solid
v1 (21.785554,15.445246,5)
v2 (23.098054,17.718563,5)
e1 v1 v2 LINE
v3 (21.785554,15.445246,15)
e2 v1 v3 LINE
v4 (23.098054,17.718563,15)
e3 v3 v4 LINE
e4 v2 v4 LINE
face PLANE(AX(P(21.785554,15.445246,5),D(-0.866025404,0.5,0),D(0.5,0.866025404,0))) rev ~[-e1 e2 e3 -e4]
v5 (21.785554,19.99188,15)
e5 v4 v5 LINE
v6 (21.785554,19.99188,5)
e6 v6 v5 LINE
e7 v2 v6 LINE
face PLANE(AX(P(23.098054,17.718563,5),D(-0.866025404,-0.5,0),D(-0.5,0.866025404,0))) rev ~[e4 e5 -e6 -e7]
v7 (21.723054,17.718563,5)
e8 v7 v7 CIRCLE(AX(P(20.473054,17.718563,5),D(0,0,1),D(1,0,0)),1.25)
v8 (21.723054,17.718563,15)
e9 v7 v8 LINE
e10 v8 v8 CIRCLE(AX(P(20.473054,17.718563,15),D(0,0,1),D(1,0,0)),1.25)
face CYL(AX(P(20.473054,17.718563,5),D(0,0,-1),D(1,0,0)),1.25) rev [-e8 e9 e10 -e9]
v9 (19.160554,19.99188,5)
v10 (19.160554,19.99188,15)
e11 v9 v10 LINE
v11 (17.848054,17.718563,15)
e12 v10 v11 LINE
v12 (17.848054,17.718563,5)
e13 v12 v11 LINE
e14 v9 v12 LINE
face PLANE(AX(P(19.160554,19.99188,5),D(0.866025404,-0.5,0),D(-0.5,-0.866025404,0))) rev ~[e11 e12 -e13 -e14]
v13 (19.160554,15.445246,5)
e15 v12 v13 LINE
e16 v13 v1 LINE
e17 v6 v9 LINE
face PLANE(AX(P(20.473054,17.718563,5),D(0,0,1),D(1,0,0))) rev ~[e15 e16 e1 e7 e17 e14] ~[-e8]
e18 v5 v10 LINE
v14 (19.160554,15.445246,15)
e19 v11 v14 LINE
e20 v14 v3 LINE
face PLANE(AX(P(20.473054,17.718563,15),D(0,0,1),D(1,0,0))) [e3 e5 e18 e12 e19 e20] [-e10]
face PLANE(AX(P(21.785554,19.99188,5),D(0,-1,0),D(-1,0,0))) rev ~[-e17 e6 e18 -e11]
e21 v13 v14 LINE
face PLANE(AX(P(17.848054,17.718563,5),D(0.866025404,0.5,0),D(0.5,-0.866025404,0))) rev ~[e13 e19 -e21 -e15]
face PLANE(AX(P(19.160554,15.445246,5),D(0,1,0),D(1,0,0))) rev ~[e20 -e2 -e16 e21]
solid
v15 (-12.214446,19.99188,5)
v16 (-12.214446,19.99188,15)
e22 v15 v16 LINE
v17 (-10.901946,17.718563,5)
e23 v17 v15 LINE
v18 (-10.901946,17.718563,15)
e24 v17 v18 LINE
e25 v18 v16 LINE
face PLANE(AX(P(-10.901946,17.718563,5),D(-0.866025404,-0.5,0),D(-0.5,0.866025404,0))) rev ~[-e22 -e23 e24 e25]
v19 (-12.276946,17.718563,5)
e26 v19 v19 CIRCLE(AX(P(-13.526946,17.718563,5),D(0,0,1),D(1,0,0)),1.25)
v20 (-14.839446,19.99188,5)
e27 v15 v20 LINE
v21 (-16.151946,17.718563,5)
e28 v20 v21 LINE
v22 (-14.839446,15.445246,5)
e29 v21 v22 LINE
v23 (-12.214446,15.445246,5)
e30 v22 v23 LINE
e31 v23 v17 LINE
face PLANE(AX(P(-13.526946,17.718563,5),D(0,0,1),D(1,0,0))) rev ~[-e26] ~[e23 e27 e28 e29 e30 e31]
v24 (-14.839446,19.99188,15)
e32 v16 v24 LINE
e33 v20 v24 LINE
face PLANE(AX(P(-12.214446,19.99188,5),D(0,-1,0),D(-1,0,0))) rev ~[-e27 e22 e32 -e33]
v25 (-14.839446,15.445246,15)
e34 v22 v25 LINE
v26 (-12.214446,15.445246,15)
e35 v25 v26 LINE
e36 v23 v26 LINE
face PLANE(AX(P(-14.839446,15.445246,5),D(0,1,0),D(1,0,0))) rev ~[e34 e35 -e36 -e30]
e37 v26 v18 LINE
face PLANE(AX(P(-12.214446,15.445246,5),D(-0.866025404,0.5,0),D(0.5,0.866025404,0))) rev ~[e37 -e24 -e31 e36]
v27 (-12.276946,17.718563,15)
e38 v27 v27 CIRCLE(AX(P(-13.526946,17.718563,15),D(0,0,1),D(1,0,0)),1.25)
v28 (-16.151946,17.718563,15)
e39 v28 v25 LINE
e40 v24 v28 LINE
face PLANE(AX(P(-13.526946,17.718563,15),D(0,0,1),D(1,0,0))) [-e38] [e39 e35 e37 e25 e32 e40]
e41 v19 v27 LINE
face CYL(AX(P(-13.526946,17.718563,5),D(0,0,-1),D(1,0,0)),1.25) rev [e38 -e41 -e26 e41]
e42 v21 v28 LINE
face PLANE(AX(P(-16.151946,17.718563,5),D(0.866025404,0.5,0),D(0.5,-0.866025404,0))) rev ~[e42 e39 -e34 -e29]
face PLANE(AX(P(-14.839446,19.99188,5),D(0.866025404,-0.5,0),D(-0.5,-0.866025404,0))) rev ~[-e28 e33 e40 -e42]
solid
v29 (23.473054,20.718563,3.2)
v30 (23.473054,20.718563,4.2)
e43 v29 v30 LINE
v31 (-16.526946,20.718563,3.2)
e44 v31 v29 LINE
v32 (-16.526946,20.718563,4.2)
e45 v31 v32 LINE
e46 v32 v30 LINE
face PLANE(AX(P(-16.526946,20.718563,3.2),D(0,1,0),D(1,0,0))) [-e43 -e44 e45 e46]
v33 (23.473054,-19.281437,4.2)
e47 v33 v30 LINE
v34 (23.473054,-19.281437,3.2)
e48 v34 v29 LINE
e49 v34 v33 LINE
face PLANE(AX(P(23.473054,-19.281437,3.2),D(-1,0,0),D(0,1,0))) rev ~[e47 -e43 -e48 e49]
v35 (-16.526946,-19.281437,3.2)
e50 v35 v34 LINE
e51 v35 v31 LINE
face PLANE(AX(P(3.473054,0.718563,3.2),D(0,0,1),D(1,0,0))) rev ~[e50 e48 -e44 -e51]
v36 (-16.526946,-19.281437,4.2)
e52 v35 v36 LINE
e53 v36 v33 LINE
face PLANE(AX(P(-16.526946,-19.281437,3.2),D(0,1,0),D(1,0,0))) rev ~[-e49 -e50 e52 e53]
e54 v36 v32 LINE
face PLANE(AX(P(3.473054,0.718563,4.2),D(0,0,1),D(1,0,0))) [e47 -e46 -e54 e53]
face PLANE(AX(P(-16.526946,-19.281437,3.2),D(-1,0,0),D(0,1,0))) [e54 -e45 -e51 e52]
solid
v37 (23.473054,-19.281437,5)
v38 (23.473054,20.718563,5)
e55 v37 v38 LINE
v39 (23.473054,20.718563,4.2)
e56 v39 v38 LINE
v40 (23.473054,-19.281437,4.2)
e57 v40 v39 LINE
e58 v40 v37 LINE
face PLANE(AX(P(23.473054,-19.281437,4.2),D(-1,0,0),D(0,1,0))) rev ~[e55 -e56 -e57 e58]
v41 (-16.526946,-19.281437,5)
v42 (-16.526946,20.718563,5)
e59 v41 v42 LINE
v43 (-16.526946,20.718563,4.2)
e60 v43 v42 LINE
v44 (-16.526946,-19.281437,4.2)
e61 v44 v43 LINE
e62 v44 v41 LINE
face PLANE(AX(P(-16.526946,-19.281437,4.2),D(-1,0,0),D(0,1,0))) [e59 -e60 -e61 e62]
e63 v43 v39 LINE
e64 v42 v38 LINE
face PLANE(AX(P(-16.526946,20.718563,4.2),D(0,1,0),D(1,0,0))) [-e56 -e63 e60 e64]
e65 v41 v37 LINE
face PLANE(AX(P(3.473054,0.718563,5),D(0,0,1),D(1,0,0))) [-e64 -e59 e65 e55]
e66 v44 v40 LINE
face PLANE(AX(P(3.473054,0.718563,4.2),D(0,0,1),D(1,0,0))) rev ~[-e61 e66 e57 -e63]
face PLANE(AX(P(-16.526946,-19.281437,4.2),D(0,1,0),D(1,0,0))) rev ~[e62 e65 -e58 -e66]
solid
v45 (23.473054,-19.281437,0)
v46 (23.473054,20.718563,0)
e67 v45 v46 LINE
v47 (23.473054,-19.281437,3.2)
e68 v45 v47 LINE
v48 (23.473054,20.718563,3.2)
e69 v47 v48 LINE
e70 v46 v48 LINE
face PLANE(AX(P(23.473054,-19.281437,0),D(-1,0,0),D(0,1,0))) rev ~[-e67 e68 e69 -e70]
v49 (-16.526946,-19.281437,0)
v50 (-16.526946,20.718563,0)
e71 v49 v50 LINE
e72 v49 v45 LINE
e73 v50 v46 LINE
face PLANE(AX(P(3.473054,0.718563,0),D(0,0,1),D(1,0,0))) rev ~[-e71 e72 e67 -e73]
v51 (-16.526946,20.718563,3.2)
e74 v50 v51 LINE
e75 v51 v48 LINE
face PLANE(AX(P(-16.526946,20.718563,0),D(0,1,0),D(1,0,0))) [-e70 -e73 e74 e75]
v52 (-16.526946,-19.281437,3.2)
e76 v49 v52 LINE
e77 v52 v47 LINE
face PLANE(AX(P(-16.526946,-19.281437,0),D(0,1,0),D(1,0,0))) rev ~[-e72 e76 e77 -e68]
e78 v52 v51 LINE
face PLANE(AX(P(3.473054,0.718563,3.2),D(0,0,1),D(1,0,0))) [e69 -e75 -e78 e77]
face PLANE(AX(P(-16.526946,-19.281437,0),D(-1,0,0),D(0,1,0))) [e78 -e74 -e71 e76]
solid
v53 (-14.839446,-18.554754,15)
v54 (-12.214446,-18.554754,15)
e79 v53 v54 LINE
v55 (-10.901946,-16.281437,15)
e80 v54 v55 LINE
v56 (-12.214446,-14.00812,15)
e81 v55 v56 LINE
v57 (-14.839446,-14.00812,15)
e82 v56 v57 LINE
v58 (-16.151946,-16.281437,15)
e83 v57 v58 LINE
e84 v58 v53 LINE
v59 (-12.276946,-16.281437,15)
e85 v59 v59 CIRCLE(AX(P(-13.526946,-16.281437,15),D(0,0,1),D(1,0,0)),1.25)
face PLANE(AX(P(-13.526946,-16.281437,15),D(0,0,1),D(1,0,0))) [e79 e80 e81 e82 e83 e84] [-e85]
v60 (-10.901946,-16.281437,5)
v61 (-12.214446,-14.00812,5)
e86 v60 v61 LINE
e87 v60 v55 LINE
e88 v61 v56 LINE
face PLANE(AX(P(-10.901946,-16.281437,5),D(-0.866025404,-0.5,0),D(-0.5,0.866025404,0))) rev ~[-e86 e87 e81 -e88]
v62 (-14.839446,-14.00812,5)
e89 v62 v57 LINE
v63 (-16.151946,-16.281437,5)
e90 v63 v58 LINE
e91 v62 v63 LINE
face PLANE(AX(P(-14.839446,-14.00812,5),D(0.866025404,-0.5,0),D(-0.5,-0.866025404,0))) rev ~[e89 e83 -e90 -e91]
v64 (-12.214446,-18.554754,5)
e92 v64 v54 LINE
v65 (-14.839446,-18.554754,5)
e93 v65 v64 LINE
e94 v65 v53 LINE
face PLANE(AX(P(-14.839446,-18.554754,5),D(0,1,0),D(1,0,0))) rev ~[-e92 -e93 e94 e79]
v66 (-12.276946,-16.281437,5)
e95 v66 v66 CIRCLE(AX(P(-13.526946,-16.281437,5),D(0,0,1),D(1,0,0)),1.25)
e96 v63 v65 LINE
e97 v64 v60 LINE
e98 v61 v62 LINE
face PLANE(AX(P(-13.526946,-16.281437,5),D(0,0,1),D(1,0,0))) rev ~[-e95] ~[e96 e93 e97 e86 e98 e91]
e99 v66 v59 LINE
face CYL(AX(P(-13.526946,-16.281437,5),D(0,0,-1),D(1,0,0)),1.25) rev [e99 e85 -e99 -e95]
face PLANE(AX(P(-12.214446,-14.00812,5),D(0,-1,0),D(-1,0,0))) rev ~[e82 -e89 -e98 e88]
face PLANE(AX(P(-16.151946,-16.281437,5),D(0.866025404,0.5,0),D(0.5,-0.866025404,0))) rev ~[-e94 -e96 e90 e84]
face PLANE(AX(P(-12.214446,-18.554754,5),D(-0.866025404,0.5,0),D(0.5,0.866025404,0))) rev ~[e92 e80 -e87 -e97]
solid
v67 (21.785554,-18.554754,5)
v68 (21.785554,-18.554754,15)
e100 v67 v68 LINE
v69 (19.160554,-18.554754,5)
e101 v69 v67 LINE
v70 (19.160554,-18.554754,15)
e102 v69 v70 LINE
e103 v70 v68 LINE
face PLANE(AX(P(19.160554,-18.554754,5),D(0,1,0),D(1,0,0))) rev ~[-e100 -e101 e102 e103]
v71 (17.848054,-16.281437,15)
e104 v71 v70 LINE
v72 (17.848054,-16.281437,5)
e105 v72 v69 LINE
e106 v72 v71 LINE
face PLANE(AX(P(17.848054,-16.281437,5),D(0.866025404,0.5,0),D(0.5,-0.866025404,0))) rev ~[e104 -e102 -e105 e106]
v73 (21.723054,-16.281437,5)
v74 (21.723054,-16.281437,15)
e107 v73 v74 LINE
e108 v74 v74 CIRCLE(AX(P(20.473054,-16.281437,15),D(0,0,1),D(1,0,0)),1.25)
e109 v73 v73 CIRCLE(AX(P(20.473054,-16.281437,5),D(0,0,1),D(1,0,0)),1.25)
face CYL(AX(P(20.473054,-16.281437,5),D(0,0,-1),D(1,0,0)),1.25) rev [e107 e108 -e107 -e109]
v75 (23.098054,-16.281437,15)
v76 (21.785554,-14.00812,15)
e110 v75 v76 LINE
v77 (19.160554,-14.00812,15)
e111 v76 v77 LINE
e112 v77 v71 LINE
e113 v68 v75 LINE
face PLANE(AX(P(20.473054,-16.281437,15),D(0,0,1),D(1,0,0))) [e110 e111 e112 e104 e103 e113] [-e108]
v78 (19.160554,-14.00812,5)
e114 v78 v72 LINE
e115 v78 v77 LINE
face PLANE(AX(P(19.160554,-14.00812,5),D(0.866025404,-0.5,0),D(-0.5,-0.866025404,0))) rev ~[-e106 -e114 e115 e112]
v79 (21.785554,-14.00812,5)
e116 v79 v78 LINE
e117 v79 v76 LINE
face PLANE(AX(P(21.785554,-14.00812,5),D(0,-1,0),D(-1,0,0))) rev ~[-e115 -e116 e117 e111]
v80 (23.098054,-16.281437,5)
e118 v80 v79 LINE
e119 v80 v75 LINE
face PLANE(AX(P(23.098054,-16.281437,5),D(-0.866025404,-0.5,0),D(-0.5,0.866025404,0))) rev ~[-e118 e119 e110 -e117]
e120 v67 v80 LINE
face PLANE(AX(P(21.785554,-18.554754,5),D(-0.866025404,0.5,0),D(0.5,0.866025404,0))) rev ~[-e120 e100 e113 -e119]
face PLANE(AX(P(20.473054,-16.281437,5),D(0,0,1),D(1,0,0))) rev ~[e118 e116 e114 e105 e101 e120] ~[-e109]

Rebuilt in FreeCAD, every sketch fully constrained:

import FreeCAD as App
import Part
import Sketcher
from FreeCAD import Vector
Q = App.Units.Quantity


def add_polygon(sketch, points):
    """Adds a closed chain of lines whose ends are joined by coincident constraints."""
    first, n = sketch.GeometryCount, len(points)
    for a, b in zip(points, points[1:] + points[:1]):
        sketch.addGeometry(Part.LineSegment(App.Vector(*a, 0), App.Vector(*b, 0)), False)
    for i in range(n):
        sketch.addConstraint(Sketcher.Constraint("Coincident", first + i, 2, first + (i + 1) % n, 1))

doc = App.newDocument("Part")
body = doc.addObject("PartDesign::Body", "Body")

# Sketch on XY plane
sketch1 = body.newObject("Sketcher::SketchObject", "Sketch")
sketch1.AttachmentSupport = (doc.getObject("XY_Plane"), [""])
sketch1.MapMode = "FlatFace"
add_polygon(sketch1, [(-17, 21), (-17, -19), (23, -19), (23, 21)])  # lines 0-3
sketch1.addConstraint([
    Sketcher.Constraint("Vertical", 0),
    Sketcher.Constraint("Horizontal", 1),
    Sketcher.Constraint("Vertical", 2),
    Sketcher.Constraint("Horizontal", 3),
    Sketcher.Constraint("Equal", 3, 0),
    Sketcher.Constraint("DistanceX", 1, 1, 1, 2, 40.0),
    Sketcher.Constraint("DistanceX", 0, 2, -1, 1, 16.526946),
    Sketcher.Constraint("DistanceY", 0, 2, -1, 1, 19.281437),
])
pad1 = body.newObject("PartDesign::Pad", "Pad")
pad1.Profile = sketch1
pad1.Length = 3.2
body2 = doc.addObject("PartDesign::Body", "Body001")

# Sketch on XY plane
sketch2 = body2.newObject("Sketcher::SketchObject", "Sketch001")
sketch2.AttachmentSupport = (doc.getObject("XY_Plane001"), [""])
sketch2.MapMode = "FlatFace"
sketch2.AttachmentOffset = App.Placement(Vector(0, 0, 3.2), App.Rotation())
add_polygon(sketch2, [(-17, 21), (-17, -19), (23, -19), (23, 21)])  # lines 0-3
sketch2.addConstraint([
    Sketcher.Constraint("Vertical", 0),
    Sketcher.Constraint("Horizontal", 1),
    Sketcher.Constraint("Vertical", 2),
    Sketcher.Constraint("Horizontal", 3),
    Sketcher.Constraint("Equal", 3, 0),
    Sketcher.Constraint("DistanceX", 1, 1, 1, 2, 40.0),
    Sketcher.Constraint("DistanceX", 0, 2, -1, 1, 16.526946),
    Sketcher.Constraint("DistanceY", 0, 2, -1, 1, 19.281437),
])
pad2 = body2.newObject("PartDesign::Pad", "Pad001")
pad2.Profile = sketch2
pad2.Length = 1
body3 = doc.addObject("PartDesign::Body", "Body002")

# Sketch on XY plane
sketch3 = body3.newObject("Sketcher::SketchObject", "Sketch002")
sketch3.AttachmentSupport = (doc.getObject("XY_Plane002"), [""])
sketch3.MapMode = "FlatFace"
sketch3.AttachmentOffset = App.Placement(Vector(0, 0, 4.2), App.Rotation())
add_polygon(sketch3, [(-17, 21), (-17, -19), (23, -19), (23, 21)])  # lines 0-3
sketch3.addConstraint([
    Sketcher.Constraint("Vertical", 0),
    Sketcher.Constraint("Horizontal", 1),
    Sketcher.Constraint("Vertical", 2),
    Sketcher.Constraint("Horizontal", 3),
    Sketcher.Constraint("Equal", 3, 0),
    Sketcher.Constraint("DistanceX", 1, 1, 1, 2, 40.0),
    Sketcher.Constraint("DistanceX", 0, 2, -1, 1, 16.526946),
    Sketcher.Constraint("DistanceY", 0, 2, -1, 1, 19.281437),
])
pad3 = body3.newObject("PartDesign::Pad", "Pad002")
pad3.Profile = sketch3
pad3.Length = 0.8
body4 = doc.addObject("PartDesign::Body", "Body003")

# Sketch on XY plane
sketch4 = body4.newObject("Sketcher::SketchObject", "Sketch003")
sketch4.AttachmentSupport = (doc.getObject("XY_Plane003"), [""])
sketch4.MapMode = "FlatFace"
sketch4.AttachmentOffset = App.Placement(Vector(0, 0, 5), App.Rotation())
add_polygon(sketch4, [(-10.9, 17.7), (-12.2, 20), (-14.8, 20), (-16.2, 17.7), (-14.8, 15.4), (-12.2, 15.4)])  # lines 0-5
sketch4.addGeometry(Part.Circle(Vector(-13.5, 17.7, 0), Vector(0, 0, 1), 1.2), False)  # 6
sketch4.addConstraint([
    Sketcher.Constraint("Horizontal", 1),
    Sketcher.Constraint("Horizontal", 4),
    Sketcher.Constraint("Parallel", 0, 3),
    Sketcher.Constraint("Parallel", 2, 5),
    Sketcher.Constraint("Horizontal", 6, 3, 2, 2),
    Sketcher.Constraint("Horizontal", 2, 2, 5, 2),
    Sketcher.Constraint("Vertical", 1, 2, 3, 2),
    Sketcher.Constraint("Vertical", 0, 2, 4, 2),
    Sketcher.Constraint("Diameter", 6, 2.5),
    Sketcher.Constraint("Angle", 0, Q("120 deg")),
    Sketcher.Constraint("DistanceX", 1, 2, 1, 1, 2.625),
    Sketcher.Constraint("Distance", 0, 2.625),
    Sketcher.Constraint("DistanceX", 2, 2, 6, 3, 2.625),
    Sketcher.Constraint("DistanceY", -1, 1, 0, 2, 19.99188),
    Sketcher.Constraint("DistanceX", 6, 3, -1, 1, 13.526946),
])
pad4 = body4.newObject("PartDesign::Pad", "Pad003")
pad4.Profile = sketch4
pad4.Length = 10
body5 = doc.addObject("PartDesign::Body", "Body004")

# Sketch on XY plane
sketch5 = body5.newObject("Sketcher::SketchObject", "Sketch004")
sketch5.AttachmentSupport = (doc.getObject("XY_Plane004"), [""])
sketch5.MapMode = "FlatFace"
sketch5.AttachmentOffset = App.Placement(Vector(0, 0, 5), App.Rotation())
add_polygon(sketch5, [(17.8, 17.7), (19.2, 15.4), (21.8, 15.4), (23.1, 17.7), (21.8, 20), (19.2, 20)])  # lines 0-5
sketch5.addGeometry(Part.Circle(Vector(20.5, 17.7, 0), Vector(0, 0, 1), 1.2), False)  # 6
sketch5.addConstraint([
    Sketcher.Constraint("Horizontal", 1),
    Sketcher.Constraint("Horizontal", 4),
    Sketcher.Constraint("Parallel", 0, 3),
    Sketcher.Constraint("Parallel", 2, 5),
    Sketcher.Constraint("Horizontal", 6, 3, 2, 2),
    Sketcher.Constraint("Horizontal", 2, 2, 5, 2),
    Sketcher.Constraint("Vertical", 1, 2, 3, 2),
    Sketcher.Constraint("Vertical", 0, 2, 4, 2),
    Sketcher.Constraint("Diameter", 6, 2.5),
    Sketcher.Constraint("Angle", 0, Q("-60 deg")),
    Sketcher.Constraint("DistanceX", 1, 1, 1, 2, 2.625),
    Sketcher.Constraint("Distance", 0, 2.625),
    Sketcher.Constraint("DistanceX", 6, 3, 2, 2, 2.625),
    Sketcher.Constraint("DistanceY", -1, 1, 3, 2, 19.99188),
    Sketcher.Constraint("DistanceX", -1, 1, 6, 3, 20.473054),
])
pad5 = body5.newObject("PartDesign::Pad", "Pad004")
pad5.Profile = sketch5
pad5.Length = 10
body6 = doc.addObject("PartDesign::Body", "Body005")

# Sketch on XY plane
sketch6 = body6.newObject("Sketcher::SketchObject", "Sketch005")
sketch6.AttachmentSupport = (doc.getObject("XY_Plane005"), [""])
sketch6.MapMode = "FlatFace"
sketch6.AttachmentOffset = App.Placement(Vector(0, 0, 5), App.Rotation())
add_polygon(sketch6, [(-10.9, -16.3), (-12.2, -14), (-14.8, -14), (-16.2, -16.3), (-14.8, -18.6), (-12.2, -18.6)])  # lines 0-5
sketch6.addGeometry(Part.Circle(Vector(-13.5, -16.3, 0), Vector(0, 0, 1), 1.2), False)  # 6
sketch6.addConstraint([
    Sketcher.Constraint("Horizontal", 1),
    Sketcher.Constraint("Horizontal", 4),
    Sketcher.Constraint("Parallel", 0, 3),
    Sketcher.Constraint("Parallel", 2, 5),
    Sketcher.Constraint("Horizontal", 6, 3, 2, 2),
    Sketcher.Constraint("Horizontal", 2, 2, 5, 2),
    Sketcher.Constraint("Vertical", 1, 2, 3, 2),
    Sketcher.Constraint("Vertical", 0, 2, 4, 2),
    Sketcher.Constraint("Diameter", 6, 2.5),
    Sketcher.Constraint("Angle", 0, Q("120 deg")),
    Sketcher.Constraint("DistanceX", 1, 2, 1, 1, 2.625),
    Sketcher.Constraint("Distance", 0, 2.625),
    Sketcher.Constraint("DistanceX", 2, 2, 6, 3, 2.625),
    Sketcher.Constraint("DistanceY", 0, 2, -1, 1, 14.00812),
    Sketcher.Constraint("DistanceX", 6, 3, -1, 1, 13.526946),
])
pad6 = body6.newObject("PartDesign::Pad", "Pad005")
pad6.Profile = sketch6
pad6.Length = 10
body7 = doc.addObject("PartDesign::Body", "Body006")

# Sketch on XY plane
sketch7 = body7.newObject("Sketcher::SketchObject", "Sketch006")
sketch7.AttachmentSupport = (doc.getObject("XY_Plane006"), [""])
sketch7.MapMode = "FlatFace"
sketch7.AttachmentOffset = App.Placement(Vector(0, 0, 5), App.Rotation())
add_polygon(sketch7, [(23.1, -16.3), (21.8, -14), (19.2, -14), (17.8, -16.3), (19.2, -18.6), (21.8, -18.6)])  # lines 0-5
sketch7.addGeometry(Part.Circle(Vector(20.5, -16.3, 0), Vector(0, 0, 1), 1.2), False)  # 6
sketch7.addConstraint([
    Sketcher.Constraint("Horizontal", 1),
    Sketcher.Constraint("Horizontal", 4),
    Sketcher.Constraint("Parallel", 0, 3),
    Sketcher.Constraint("Parallel", 2, 5),
    Sketcher.Constraint("Horizontal", 6, 3, 2, 2),
    Sketcher.Constraint("Horizontal", 2, 2, 5, 2),
    Sketcher.Constraint("Vertical", 1, 2, 3, 2),
    Sketcher.Constraint("Vertical", 0, 2, 4, 2),
    Sketcher.Constraint("Diameter", 6, 2.5),
    Sketcher.Constraint("Angle", 0, Q("120 deg")),
    Sketcher.Constraint("DistanceX", 1, 2, 1, 1, 2.625),
    Sketcher.Constraint("Distance", 0, 2.625),
    Sketcher.Constraint("DistanceX", 2, 2, 6, 3, 2.625),
    Sketcher.Constraint("DistanceY", 0, 2, -1, 1, 14.00812),
    Sketcher.Constraint("DistanceX", -1, 1, 6, 3, 20.473054),
])
pad7 = body7.newObject("PartDesign::Pad", "Pad006")
pad7.Profile = sketch7
pad7.Length = 10

doc.recompute()
